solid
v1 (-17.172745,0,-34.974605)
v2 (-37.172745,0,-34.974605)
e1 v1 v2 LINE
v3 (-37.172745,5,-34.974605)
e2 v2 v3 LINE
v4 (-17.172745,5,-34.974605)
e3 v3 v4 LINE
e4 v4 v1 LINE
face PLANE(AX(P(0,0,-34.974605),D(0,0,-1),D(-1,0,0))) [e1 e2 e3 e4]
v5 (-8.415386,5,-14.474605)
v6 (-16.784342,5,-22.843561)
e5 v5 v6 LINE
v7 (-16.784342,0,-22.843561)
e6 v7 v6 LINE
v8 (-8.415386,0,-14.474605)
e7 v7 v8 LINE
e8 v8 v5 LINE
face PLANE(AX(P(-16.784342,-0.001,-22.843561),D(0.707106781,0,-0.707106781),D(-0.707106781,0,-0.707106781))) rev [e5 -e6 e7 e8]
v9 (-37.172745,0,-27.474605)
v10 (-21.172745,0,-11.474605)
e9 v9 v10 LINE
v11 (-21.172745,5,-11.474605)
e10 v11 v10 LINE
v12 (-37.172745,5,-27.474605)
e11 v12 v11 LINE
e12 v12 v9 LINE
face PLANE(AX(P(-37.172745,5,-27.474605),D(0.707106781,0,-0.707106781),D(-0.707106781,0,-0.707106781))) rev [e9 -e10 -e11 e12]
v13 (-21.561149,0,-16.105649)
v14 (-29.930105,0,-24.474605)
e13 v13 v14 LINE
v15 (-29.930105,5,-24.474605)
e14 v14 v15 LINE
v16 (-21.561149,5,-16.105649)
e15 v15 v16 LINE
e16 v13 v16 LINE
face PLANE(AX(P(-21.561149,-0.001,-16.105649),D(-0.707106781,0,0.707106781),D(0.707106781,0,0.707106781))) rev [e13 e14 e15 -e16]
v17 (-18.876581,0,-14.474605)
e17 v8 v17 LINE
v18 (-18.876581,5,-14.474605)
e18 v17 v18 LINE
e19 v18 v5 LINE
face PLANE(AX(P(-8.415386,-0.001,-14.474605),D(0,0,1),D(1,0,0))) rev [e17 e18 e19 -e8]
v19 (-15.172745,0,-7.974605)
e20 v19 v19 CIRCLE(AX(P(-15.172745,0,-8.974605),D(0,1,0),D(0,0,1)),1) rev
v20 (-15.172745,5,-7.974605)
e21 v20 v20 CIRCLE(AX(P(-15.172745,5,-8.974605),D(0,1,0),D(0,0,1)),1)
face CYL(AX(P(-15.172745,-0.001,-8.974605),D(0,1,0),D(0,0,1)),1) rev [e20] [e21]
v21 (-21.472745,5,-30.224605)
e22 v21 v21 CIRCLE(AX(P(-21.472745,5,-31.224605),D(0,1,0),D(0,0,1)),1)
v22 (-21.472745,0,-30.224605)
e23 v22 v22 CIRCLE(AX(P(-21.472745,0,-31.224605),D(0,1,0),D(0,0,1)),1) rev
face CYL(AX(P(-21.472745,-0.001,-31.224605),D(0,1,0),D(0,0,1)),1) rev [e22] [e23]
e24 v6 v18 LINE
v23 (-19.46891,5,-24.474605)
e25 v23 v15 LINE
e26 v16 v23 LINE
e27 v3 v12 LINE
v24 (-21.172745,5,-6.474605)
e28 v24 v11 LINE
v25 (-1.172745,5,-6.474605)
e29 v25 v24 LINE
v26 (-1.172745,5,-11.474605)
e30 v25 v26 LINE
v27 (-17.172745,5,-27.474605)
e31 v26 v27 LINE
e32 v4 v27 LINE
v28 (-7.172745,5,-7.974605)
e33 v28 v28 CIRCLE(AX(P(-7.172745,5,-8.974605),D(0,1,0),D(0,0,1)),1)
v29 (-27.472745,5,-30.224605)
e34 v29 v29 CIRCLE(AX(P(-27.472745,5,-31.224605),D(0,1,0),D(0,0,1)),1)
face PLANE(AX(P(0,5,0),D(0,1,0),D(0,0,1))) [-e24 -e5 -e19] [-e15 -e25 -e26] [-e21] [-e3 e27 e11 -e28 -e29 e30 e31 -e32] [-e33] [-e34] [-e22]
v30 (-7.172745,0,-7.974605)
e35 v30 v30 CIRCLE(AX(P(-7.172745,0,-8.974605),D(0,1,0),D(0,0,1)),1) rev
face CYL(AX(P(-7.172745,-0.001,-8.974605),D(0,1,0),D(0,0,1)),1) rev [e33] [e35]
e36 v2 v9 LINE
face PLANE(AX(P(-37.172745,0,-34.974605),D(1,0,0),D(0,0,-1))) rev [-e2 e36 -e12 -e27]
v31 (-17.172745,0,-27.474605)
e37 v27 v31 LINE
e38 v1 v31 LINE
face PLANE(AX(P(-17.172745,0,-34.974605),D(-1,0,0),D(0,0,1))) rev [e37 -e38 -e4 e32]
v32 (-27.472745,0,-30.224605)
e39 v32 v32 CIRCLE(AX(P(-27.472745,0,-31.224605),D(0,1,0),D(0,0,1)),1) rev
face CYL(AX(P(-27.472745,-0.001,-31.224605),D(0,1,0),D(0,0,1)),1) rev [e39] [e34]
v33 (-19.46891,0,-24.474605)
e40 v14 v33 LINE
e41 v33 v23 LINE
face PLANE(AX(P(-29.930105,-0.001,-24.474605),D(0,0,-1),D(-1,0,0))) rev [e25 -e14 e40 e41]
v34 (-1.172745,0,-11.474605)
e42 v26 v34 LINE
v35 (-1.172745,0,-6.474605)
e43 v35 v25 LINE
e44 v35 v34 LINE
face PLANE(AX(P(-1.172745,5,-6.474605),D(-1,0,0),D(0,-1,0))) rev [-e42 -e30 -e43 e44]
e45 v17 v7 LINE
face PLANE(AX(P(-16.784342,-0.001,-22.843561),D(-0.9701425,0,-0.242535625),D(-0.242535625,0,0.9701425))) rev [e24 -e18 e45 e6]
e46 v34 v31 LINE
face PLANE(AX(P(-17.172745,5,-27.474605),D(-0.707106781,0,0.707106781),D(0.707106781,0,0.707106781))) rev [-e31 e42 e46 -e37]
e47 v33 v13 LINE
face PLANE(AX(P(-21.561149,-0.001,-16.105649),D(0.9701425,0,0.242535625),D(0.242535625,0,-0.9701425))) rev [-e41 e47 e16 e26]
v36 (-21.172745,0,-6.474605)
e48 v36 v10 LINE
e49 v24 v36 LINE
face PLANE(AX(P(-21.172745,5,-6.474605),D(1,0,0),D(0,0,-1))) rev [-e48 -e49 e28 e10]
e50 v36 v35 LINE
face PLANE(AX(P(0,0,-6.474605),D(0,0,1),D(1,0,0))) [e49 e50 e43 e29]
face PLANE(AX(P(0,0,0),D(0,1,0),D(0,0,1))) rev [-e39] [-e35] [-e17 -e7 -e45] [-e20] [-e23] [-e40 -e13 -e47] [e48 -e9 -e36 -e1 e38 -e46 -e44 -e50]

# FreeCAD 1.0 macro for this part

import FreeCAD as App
import Part
import Sketcher

V = App.Vector
Q = App.Units.Quantity

doc = App.newDocument("Part")
body = doc.addObject("PartDesign::Body", "Body")

# Sketch on XZ plane
sketch1 = body.newObject("Sketcher::SketchObject", "Sketch")
sketch1.AttachmentSupport = (doc.getObject("XZ_Plane"), [""])
sketch1.MapMode = "FlatFace"
sketch1.addGeometry([
    Part.LineSegment(V(-17.172745, -27.474605, 0), V(-37.172745, -27.474605, 0)),
    Part.LineSegment(V(-37.172745, -27.474605, 0), V(-21.172745, -11.474605, 0)),
    Part.LineSegment(V(-21.172745, -11.474605, 0), V(-1.172745, -11.474605, 0)),
    Part.LineSegment(V(-1.172745, -11.474605, 0), V(-17.172745, -27.474605, 0)),
], False)
sketch1.addConstraint([
    Sketcher.Constraint("Coincident", 0, 2, 1, 1),
    Sketcher.Constraint("Coincident", 1, 2, 2, 1),
    Sketcher.Constraint("Coincident", 2, 2, 3, 1),
    Sketcher.Constraint("Coincident", 3, 2, 0, 1),
    Sketcher.Constraint("Horizontal", 0),
    Sketcher.Constraint("Horizontal", 2),
    Sketcher.Constraint("Parallel", 1, 3),
    Sketcher.Constraint("DistanceX", 0, 2, 0, 1, Q("20 mm")),
    Sketcher.Constraint("Angle", 1, Q("45 deg")),
    Sketcher.Constraint("DistanceX", 0, 2, 1, 2, Q("16 mm")),
    Sketcher.Constraint("DistanceX", 0, 2, -1, 1, Q("37.172745 mm")),
    Sketcher.Constraint("DistanceY", 0, 2, -1, 1, Q("27.474605 mm")),
])
pad1 = body.newObject("PartDesign::Pad", "Pad")
pad1.Profile = sketch1
pad1.Length = 5
pad1.Reversed = True

# Sketch on XY plane
sketch2 = body.newObject("Sketcher::SketchObject", "Sketch001")
sketch2.AttachmentSupport = (doc.getObject("XY_Plane"), [""])
sketch2.MapMode = "FlatFace"
sketch2.AttachmentOffset = App.Placement(V(0, 0, -27.474605), App.Rotation())
sketch2.addGeometry([
    Part.LineSegment(V(-17.172745, 5, 0), V(-17.172745, 0, 0)),
    Part.LineSegment(V(-17.172745, 0, 0), V(-37.172745, 0, 0)),
    Part.LineSegment(V(-37.172745, 0, 0), V(-37.172745, 5, 0)),
    Part.LineSegment(V(-37.172745, 5, 0), V(-17.172745, 5, 0)),
], False)
sketch2.addConstraint([
    Sketcher.Constraint("Coincident", 0, 2, 1, 1),
    Sketcher.Constraint("Coincident", 1, 2, 2, 1),
    Sketcher.Constraint("Coincident", 2, 2, 3, 1),
    Sketcher.Constraint("Coincident", 3, 2, 0, 1),
    Sketcher.Constraint("Vertical", 0),
    Sketcher.Constraint("Horizontal", 1),
    Sketcher.Constraint("Vertical", 2),
    Sketcher.Constraint("Horizontal", 3),
    Sketcher.Constraint("PointOnObject", 0, 2, -1),
    Sketcher.Constraint("DistanceX", 1, 2, 1, 1, Q("20 mm")),
    Sketcher.Constraint("DistanceY", 0, 2, 0, 1, Q("5 mm")),
    Sketcher.Constraint("DistanceX", 0, 2, -1, 1, Q("17.172745 mm")),
])
pad2 = body.newObject("PartDesign::Pad", "Pad001")
pad2.Profile = sketch2
pad2.Length = 7.5
pad2.Reversed = True

# Sketch on XY plane
sketch3 = body.newObject("Sketcher::SketchObject", "Sketch002")
sketch3.AttachmentSupport = (doc.getObject("XY_Plane"), [""])
sketch3.MapMode = "FlatFace"
sketch3.AttachmentOffset = App.Placement(V(0, 0, -11.474605), App.Rotation())
sketch3.addGeometry([
    Part.LineSegment(V(-21.172745, 5, 0), V(-21.172745, 0, 0)),
    Part.LineSegment(V(-21.172745, 0, 0), V(-1.172745, 0, 0)),
    Part.LineSegment(V(-1.172745, 0, 0), V(-1.172745, 5, 0)),
    Part.LineSegment(V(-1.172745, 5, 0), V(-21.172745, 5, 0)),
], False)
sketch3.addConstraint([
    Sketcher.Constraint("Coincident", 0, 2, 1, 1),
    Sketcher.Constraint("Coincident", 1, 2, 2, 1),
    Sketcher.Constraint("Coincident", 2, 2, 3, 1),
    Sketcher.Constraint("Coincident", 3, 2, 0, 1),
    Sketcher.Constraint("Vertical", 0),
    Sketcher.Constraint("Horizontal", 1),
    Sketcher.Constraint("Vertical", 2),
    Sketcher.Constraint("Horizontal", 3),
    Sketcher.Constraint("PointOnObject", 0, 2, -1),
    Sketcher.Constraint("DistanceX", 1, 1, 1, 2, Q("20 mm")),
    Sketcher.Constraint("DistanceY", 0, 2, 0, 1, Q("5 mm")),
    Sketcher.Constraint("DistanceX", 0, 2, -1, 1, Q("21.172745 mm")),
])
pad3 = body.newObject("PartDesign::Pad", "Pad002")
pad3.Profile = sketch3
pad3.Length = 5

# Sketch on XZ plane
sketch4 = body.newObject("Sketcher::SketchObject", "Sketch003")
sketch4.AttachmentSupport = (doc.getObject("XZ_Plane"), [""])
sketch4.MapMode = "FlatFace"
sketch4.AttachmentOffset = App.Placement(V(0, 0, -5), App.Rotation())
sketch4.addGeometry([
    Part.LineSegment(V(-8.415386, -14.474605, 0), V(-16.784342, -22.843561, 0)),
    Part.LineSegment(V(-16.784342, -22.843561, 0), V(-18.876581, -14.474605, 0)),
    Part.LineSegment(V(-18.876581, -14.474605, 0), V(-8.415386, -14.474605, 0)),
], False)
sketch4.addConstraint([
    Sketcher.Constraint("Coincident", 0, 2, 1, 1),
    Sketcher.Constraint("Coincident", 1, 2, 2, 1),
    Sketcher.Constraint("Coincident", 2, 2, 0, 1),
    Sketcher.Constraint("Horizontal", 2),
    Sketcher.Constraint("Angle", 0, Q("-135 deg")),
    Sketcher.Constraint("Distance", 0, Q("11.835491 mm")),
    Sketcher.Constraint("DistanceX", 2, 1, 2, 2, Q("10.461195 mm")),
    Sketcher.Constraint("DistanceX", 0, 2, -1, 1, Q("16.784342 mm")),
    Sketcher.Constraint("DistanceY", 0, 2, -1, 1, Q("22.843561 mm")),
])
pocket1 = body.newObject("PartDesign::Pocket", "Pocket")
pocket1.Profile = sketch4
pocket1.Type = "UpToFirst"
pocket1.Reversed = True

# Sketch on XZ plane
sketch5 = body.newObject("Sketcher::SketchObject", "Sketch004")
sketch5.AttachmentSupport = (doc.getObject("XZ_Plane"), [""])
sketch5.MapMode = "FlatFace"
sketch5.AttachmentOffset = App.Placement(V(0, 0, -5), App.Rotation())
sketch5.addGeometry([
    Part.LineSegment(V(-29.930105, -24.474605, 0), V(-21.561149, -16.105649, 0)),
    Part.LineSegment(V(-21.561149, -16.105649, 0), V(-19.46891, -24.474605, 0)),
    Part.LineSegment(V(-19.46891, -24.474605, 0), V(-29.930105, -24.474605, 0)),
], False)
sketch5.addConstraint([
    Sketcher.Constraint("Coincident", 0, 2, 1, 1),
    Sketcher.Constraint("Coincident", 1, 2, 2, 1),
    Sketcher.Constraint("Coincident", 2, 2, 0, 1),
    Sketcher.Constraint("Horizontal", 2),
    Sketcher.Constraint("Angle", 0, Q("45 deg")),
    Sketcher.Constraint("Distance", 0, Q("11.835491 mm")),
    Sketcher.Constraint("DistanceX", 2, 2, 2, 1, Q("10.461195 mm")),
    Sketcher.Constraint("DistanceX", 0, 2, -1, 1, Q("21.561149 mm")),
    Sketcher.Constraint("DistanceY", 0, 2, -1, 1, Q("16.105649 mm")),
])
pocket2 = body.newObject("PartDesign::Pocket", "Pocket001")
pocket2.Profile = sketch5
pocket2.Type = "UpToFirst"
pocket2.Reversed = True

# Sketch on XZ plane
sketch6 = body.newObject("Sketcher::SketchObject", "Sketch005")
sketch6.AttachmentSupport = (doc.getObject("XZ_Plane"), [""])
sketch6.MapMode = "FlatFace"
sketch6.AttachmentOffset = App.Placement(V(0, 0, -5), App.Rotation())
sketch6.addGeometry(Part.Circle(V(-15.172745, -8.974605, 0), V(0, 0, 1), 1), False)
sketch6.addConstraint([
    Sketcher.Constraint("Diameter", 0, Q("2 mm")),
    Sketcher.Constraint("DistanceX", 0, 3, -1, 1, Q("15.172745 mm")),
    Sketcher.Constraint("DistanceY", 0, 3, -1, 1, Q("8.974605 mm")),
])
pocket3 = body.newObject("PartDesign::Pocket", "Pocket002")
pocket3.Profile = sketch6
pocket3.Type = "UpToFirst"
pocket3.Reversed = True

# Sketch on XZ plane
sketch7 = body.newObject("Sketcher::SketchObject", "Sketch006")
sketch7.AttachmentSupport = (doc.getObject("XZ_Plane"), [""])
sketch7.MapMode = "FlatFace"
sketch7.AttachmentOffset = App.Placement(V(0, 0, -5), App.Rotation())
sketch7.addGeometry(Part.Circle(V(-7.172745, -8.974605, 0), V(0, 0, 1), 1), False)
sketch7.addConstraint([
    Sketcher.Constraint("Diameter", 0, Q("2 mm")),
    Sketcher.Constraint("DistanceX", 0, 3, -1, 1, Q("7.172745 mm")),
    Sketcher.Constraint("DistanceY", 0, 3, -1, 1, Q("8.974605 mm")),
])
pocket4 = body.newObject("PartDesign::Pocket", "Pocket003")
pocket4.Profile = sketch7
pocket4.Type = "UpToFirst"
pocket4.Reversed = True

# Sketch on XZ plane
sketch8 = body.newObject("Sketcher::SketchObject", "Sketch007")
sketch8.AttachmentSupport = (doc.getObject("XZ_Plane"), [""])
sketch8.MapMode = "FlatFace"
sketch8.AttachmentOffset = App.Placement(V(0, 0, -5), App.Rotation())
sketch8.addGeometry(Part.Circle(V(-21.472745, -31.224605, 0), V(0, 0, 1), 1), False)
sketch8.addConstraint([
    Sketcher.Constraint("Diameter", 0, Q("2 mm")),
    Sketcher.Constraint("DistanceX", 0, 3, -1, 1, Q("21.472745 mm")),
    Sketcher.Constraint("DistanceY", 0, 3, -1, 1, Q("31.224605 mm")),
])
pocket5 = body.newObject("PartDesign::Pocket", "Pocket004")
pocket5.Profile = sketch8
pocket5.Type = "UpToFirst"
pocket5.Reversed = True

# Sketch on XZ plane
sketch9 = body.newObject("Sketcher::SketchObject", "Sketch008")
sketch9.AttachmentSupport = (doc.getObject("XZ_Plane"), [""])
sketch9.MapMode = "FlatFace"
sketch9.AttachmentOffset = App.Placement(V(0, 0, -5), App.Rotation())
sketch9.addGeometry(Part.Circle(V(-27.472745, -31.224605, 0), V(0, 0, 1), 1), False)
sketch9.addConstraint([
    Sketcher.Constraint("Diameter", 0, Q("2 mm")),
    Sketcher.Constraint("DistanceX", 0, 3, -1, 1, Q("27.472745 mm")),
    Sketcher.Constraint("DistanceY", 0, 3, -1, 1, Q("31.224605 mm")),
])
pocket6 = body.newObject("PartDesign::Pocket", "Pocket005")
pocket6.Profile = sketch9
pocket6.Type = "UpToFirst"
pocket6.Reversed = True

doc.recompute()
